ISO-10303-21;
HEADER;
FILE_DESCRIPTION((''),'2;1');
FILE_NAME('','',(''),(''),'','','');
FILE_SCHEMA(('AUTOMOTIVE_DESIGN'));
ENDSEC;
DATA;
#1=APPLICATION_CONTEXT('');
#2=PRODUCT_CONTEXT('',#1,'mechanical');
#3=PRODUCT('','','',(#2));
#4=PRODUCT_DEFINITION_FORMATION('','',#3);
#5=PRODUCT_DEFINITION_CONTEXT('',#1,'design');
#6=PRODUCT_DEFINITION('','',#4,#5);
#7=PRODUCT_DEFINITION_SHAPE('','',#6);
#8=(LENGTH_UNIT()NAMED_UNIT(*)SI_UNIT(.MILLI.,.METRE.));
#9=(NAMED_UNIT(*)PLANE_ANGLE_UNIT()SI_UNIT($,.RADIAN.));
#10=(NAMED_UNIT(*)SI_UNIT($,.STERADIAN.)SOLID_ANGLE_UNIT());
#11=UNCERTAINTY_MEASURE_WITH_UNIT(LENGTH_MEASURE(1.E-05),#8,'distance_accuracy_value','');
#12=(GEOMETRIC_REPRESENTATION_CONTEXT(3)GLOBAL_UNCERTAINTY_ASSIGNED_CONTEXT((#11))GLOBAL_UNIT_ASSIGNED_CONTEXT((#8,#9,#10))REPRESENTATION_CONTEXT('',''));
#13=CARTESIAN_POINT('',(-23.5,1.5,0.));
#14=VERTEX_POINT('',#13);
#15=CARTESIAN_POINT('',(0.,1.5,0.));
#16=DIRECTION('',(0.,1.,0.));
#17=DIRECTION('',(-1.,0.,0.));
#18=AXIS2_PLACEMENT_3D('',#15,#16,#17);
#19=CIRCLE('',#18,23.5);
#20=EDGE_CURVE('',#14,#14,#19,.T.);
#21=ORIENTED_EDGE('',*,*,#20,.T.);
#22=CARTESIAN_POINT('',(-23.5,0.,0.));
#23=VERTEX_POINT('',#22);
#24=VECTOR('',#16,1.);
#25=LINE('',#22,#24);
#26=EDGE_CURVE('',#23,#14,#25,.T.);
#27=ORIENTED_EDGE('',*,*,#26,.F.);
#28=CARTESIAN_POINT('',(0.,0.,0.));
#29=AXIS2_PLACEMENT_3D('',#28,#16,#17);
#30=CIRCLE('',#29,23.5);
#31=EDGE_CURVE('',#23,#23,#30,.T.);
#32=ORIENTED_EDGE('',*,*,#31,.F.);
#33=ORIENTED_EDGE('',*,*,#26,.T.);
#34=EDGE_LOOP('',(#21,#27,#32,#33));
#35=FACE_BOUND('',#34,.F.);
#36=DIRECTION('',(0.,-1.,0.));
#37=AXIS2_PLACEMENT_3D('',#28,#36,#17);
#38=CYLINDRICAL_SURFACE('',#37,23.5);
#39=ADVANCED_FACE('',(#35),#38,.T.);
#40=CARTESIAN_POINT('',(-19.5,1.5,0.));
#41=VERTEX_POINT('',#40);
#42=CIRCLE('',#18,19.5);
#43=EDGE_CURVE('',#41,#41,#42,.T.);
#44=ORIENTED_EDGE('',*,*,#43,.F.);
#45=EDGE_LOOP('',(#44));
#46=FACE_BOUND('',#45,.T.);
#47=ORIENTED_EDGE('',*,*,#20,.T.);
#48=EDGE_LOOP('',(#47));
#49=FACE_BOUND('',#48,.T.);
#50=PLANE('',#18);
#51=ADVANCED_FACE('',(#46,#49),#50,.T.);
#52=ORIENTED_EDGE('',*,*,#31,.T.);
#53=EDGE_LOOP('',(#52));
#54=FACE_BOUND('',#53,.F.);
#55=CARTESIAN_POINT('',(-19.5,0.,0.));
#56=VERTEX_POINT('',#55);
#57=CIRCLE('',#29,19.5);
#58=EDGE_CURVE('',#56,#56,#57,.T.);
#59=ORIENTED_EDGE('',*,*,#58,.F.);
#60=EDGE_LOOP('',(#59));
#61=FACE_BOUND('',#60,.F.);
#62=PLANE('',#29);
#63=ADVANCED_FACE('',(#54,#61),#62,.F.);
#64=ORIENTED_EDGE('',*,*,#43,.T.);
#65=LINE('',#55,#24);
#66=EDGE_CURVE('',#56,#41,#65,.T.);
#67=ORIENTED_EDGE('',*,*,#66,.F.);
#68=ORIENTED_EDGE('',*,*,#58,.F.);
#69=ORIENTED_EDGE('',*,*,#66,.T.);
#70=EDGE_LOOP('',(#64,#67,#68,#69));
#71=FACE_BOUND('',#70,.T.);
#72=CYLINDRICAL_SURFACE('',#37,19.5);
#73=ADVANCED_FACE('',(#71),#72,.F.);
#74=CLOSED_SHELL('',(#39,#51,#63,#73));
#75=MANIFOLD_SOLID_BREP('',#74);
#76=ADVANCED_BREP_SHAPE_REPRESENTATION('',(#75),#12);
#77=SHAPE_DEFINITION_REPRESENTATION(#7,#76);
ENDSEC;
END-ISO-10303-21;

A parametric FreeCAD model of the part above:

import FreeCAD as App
import Part
import Sketcher
from FreeCAD import Vector

doc = App.newDocument("Part")
params = doc.addObject("Spreadsheet::Sheet", "Params")
for row, (alias, value) in enumerate([
    ("sketch1_diameter", "39 mm"),
    ("sketch1_diameter2", "47 mm"),
    ("pad1_length", "1.5 mm"),
], start=1):
    params.set(f"A{row}", alias)
    params.set(f"B{row}", "=" + value)
    params.setAlias(f"B{row}", alias)

body = doc.addObject("PartDesign::Body", "Body")

# Sketch on XZ plane
sketch1 = body.newObject("Sketcher::SketchObject", "Sketch")
sketch1.AttachmentSupport = (doc.getObject("XZ_Plane"), [""])
sketch1.MapMode = "FlatFace"
sketch1.addGeometry(Part.Circle(Vector(0, 0, 0), Vector(0, 0, 1), 24), False)
sketch1.addGeometry(Part.Circle(Vector(0, 0, 0), Vector(0, 0, 1), 20), False)
sketch1.addConstraint(Sketcher.Constraint("Coincident", 0, 3, -1, 1))
sketch1.addConstraint(Sketcher.Constraint("Coincident", 1, 3, -1, 1))
sketch1.addConstraint(Sketcher.Constraint("Diameter", 1, 39.0))
sketch1.addConstraint(Sketcher.Constraint("Diameter", 0, 47.0))
sketch1.setExpression("Constraints[2]", "Params.sketch1_diameter")
sketch1.setExpression("Constraints[3]", "Params.sketch1_diameter2")
pad1 = body.newObject("PartDesign::Pad", "Pad")
pad1.Profile = sketch1
pad1.setExpression("Length", "Params.pad1_length")
pad1.Reversed = True

doc.recompute()
